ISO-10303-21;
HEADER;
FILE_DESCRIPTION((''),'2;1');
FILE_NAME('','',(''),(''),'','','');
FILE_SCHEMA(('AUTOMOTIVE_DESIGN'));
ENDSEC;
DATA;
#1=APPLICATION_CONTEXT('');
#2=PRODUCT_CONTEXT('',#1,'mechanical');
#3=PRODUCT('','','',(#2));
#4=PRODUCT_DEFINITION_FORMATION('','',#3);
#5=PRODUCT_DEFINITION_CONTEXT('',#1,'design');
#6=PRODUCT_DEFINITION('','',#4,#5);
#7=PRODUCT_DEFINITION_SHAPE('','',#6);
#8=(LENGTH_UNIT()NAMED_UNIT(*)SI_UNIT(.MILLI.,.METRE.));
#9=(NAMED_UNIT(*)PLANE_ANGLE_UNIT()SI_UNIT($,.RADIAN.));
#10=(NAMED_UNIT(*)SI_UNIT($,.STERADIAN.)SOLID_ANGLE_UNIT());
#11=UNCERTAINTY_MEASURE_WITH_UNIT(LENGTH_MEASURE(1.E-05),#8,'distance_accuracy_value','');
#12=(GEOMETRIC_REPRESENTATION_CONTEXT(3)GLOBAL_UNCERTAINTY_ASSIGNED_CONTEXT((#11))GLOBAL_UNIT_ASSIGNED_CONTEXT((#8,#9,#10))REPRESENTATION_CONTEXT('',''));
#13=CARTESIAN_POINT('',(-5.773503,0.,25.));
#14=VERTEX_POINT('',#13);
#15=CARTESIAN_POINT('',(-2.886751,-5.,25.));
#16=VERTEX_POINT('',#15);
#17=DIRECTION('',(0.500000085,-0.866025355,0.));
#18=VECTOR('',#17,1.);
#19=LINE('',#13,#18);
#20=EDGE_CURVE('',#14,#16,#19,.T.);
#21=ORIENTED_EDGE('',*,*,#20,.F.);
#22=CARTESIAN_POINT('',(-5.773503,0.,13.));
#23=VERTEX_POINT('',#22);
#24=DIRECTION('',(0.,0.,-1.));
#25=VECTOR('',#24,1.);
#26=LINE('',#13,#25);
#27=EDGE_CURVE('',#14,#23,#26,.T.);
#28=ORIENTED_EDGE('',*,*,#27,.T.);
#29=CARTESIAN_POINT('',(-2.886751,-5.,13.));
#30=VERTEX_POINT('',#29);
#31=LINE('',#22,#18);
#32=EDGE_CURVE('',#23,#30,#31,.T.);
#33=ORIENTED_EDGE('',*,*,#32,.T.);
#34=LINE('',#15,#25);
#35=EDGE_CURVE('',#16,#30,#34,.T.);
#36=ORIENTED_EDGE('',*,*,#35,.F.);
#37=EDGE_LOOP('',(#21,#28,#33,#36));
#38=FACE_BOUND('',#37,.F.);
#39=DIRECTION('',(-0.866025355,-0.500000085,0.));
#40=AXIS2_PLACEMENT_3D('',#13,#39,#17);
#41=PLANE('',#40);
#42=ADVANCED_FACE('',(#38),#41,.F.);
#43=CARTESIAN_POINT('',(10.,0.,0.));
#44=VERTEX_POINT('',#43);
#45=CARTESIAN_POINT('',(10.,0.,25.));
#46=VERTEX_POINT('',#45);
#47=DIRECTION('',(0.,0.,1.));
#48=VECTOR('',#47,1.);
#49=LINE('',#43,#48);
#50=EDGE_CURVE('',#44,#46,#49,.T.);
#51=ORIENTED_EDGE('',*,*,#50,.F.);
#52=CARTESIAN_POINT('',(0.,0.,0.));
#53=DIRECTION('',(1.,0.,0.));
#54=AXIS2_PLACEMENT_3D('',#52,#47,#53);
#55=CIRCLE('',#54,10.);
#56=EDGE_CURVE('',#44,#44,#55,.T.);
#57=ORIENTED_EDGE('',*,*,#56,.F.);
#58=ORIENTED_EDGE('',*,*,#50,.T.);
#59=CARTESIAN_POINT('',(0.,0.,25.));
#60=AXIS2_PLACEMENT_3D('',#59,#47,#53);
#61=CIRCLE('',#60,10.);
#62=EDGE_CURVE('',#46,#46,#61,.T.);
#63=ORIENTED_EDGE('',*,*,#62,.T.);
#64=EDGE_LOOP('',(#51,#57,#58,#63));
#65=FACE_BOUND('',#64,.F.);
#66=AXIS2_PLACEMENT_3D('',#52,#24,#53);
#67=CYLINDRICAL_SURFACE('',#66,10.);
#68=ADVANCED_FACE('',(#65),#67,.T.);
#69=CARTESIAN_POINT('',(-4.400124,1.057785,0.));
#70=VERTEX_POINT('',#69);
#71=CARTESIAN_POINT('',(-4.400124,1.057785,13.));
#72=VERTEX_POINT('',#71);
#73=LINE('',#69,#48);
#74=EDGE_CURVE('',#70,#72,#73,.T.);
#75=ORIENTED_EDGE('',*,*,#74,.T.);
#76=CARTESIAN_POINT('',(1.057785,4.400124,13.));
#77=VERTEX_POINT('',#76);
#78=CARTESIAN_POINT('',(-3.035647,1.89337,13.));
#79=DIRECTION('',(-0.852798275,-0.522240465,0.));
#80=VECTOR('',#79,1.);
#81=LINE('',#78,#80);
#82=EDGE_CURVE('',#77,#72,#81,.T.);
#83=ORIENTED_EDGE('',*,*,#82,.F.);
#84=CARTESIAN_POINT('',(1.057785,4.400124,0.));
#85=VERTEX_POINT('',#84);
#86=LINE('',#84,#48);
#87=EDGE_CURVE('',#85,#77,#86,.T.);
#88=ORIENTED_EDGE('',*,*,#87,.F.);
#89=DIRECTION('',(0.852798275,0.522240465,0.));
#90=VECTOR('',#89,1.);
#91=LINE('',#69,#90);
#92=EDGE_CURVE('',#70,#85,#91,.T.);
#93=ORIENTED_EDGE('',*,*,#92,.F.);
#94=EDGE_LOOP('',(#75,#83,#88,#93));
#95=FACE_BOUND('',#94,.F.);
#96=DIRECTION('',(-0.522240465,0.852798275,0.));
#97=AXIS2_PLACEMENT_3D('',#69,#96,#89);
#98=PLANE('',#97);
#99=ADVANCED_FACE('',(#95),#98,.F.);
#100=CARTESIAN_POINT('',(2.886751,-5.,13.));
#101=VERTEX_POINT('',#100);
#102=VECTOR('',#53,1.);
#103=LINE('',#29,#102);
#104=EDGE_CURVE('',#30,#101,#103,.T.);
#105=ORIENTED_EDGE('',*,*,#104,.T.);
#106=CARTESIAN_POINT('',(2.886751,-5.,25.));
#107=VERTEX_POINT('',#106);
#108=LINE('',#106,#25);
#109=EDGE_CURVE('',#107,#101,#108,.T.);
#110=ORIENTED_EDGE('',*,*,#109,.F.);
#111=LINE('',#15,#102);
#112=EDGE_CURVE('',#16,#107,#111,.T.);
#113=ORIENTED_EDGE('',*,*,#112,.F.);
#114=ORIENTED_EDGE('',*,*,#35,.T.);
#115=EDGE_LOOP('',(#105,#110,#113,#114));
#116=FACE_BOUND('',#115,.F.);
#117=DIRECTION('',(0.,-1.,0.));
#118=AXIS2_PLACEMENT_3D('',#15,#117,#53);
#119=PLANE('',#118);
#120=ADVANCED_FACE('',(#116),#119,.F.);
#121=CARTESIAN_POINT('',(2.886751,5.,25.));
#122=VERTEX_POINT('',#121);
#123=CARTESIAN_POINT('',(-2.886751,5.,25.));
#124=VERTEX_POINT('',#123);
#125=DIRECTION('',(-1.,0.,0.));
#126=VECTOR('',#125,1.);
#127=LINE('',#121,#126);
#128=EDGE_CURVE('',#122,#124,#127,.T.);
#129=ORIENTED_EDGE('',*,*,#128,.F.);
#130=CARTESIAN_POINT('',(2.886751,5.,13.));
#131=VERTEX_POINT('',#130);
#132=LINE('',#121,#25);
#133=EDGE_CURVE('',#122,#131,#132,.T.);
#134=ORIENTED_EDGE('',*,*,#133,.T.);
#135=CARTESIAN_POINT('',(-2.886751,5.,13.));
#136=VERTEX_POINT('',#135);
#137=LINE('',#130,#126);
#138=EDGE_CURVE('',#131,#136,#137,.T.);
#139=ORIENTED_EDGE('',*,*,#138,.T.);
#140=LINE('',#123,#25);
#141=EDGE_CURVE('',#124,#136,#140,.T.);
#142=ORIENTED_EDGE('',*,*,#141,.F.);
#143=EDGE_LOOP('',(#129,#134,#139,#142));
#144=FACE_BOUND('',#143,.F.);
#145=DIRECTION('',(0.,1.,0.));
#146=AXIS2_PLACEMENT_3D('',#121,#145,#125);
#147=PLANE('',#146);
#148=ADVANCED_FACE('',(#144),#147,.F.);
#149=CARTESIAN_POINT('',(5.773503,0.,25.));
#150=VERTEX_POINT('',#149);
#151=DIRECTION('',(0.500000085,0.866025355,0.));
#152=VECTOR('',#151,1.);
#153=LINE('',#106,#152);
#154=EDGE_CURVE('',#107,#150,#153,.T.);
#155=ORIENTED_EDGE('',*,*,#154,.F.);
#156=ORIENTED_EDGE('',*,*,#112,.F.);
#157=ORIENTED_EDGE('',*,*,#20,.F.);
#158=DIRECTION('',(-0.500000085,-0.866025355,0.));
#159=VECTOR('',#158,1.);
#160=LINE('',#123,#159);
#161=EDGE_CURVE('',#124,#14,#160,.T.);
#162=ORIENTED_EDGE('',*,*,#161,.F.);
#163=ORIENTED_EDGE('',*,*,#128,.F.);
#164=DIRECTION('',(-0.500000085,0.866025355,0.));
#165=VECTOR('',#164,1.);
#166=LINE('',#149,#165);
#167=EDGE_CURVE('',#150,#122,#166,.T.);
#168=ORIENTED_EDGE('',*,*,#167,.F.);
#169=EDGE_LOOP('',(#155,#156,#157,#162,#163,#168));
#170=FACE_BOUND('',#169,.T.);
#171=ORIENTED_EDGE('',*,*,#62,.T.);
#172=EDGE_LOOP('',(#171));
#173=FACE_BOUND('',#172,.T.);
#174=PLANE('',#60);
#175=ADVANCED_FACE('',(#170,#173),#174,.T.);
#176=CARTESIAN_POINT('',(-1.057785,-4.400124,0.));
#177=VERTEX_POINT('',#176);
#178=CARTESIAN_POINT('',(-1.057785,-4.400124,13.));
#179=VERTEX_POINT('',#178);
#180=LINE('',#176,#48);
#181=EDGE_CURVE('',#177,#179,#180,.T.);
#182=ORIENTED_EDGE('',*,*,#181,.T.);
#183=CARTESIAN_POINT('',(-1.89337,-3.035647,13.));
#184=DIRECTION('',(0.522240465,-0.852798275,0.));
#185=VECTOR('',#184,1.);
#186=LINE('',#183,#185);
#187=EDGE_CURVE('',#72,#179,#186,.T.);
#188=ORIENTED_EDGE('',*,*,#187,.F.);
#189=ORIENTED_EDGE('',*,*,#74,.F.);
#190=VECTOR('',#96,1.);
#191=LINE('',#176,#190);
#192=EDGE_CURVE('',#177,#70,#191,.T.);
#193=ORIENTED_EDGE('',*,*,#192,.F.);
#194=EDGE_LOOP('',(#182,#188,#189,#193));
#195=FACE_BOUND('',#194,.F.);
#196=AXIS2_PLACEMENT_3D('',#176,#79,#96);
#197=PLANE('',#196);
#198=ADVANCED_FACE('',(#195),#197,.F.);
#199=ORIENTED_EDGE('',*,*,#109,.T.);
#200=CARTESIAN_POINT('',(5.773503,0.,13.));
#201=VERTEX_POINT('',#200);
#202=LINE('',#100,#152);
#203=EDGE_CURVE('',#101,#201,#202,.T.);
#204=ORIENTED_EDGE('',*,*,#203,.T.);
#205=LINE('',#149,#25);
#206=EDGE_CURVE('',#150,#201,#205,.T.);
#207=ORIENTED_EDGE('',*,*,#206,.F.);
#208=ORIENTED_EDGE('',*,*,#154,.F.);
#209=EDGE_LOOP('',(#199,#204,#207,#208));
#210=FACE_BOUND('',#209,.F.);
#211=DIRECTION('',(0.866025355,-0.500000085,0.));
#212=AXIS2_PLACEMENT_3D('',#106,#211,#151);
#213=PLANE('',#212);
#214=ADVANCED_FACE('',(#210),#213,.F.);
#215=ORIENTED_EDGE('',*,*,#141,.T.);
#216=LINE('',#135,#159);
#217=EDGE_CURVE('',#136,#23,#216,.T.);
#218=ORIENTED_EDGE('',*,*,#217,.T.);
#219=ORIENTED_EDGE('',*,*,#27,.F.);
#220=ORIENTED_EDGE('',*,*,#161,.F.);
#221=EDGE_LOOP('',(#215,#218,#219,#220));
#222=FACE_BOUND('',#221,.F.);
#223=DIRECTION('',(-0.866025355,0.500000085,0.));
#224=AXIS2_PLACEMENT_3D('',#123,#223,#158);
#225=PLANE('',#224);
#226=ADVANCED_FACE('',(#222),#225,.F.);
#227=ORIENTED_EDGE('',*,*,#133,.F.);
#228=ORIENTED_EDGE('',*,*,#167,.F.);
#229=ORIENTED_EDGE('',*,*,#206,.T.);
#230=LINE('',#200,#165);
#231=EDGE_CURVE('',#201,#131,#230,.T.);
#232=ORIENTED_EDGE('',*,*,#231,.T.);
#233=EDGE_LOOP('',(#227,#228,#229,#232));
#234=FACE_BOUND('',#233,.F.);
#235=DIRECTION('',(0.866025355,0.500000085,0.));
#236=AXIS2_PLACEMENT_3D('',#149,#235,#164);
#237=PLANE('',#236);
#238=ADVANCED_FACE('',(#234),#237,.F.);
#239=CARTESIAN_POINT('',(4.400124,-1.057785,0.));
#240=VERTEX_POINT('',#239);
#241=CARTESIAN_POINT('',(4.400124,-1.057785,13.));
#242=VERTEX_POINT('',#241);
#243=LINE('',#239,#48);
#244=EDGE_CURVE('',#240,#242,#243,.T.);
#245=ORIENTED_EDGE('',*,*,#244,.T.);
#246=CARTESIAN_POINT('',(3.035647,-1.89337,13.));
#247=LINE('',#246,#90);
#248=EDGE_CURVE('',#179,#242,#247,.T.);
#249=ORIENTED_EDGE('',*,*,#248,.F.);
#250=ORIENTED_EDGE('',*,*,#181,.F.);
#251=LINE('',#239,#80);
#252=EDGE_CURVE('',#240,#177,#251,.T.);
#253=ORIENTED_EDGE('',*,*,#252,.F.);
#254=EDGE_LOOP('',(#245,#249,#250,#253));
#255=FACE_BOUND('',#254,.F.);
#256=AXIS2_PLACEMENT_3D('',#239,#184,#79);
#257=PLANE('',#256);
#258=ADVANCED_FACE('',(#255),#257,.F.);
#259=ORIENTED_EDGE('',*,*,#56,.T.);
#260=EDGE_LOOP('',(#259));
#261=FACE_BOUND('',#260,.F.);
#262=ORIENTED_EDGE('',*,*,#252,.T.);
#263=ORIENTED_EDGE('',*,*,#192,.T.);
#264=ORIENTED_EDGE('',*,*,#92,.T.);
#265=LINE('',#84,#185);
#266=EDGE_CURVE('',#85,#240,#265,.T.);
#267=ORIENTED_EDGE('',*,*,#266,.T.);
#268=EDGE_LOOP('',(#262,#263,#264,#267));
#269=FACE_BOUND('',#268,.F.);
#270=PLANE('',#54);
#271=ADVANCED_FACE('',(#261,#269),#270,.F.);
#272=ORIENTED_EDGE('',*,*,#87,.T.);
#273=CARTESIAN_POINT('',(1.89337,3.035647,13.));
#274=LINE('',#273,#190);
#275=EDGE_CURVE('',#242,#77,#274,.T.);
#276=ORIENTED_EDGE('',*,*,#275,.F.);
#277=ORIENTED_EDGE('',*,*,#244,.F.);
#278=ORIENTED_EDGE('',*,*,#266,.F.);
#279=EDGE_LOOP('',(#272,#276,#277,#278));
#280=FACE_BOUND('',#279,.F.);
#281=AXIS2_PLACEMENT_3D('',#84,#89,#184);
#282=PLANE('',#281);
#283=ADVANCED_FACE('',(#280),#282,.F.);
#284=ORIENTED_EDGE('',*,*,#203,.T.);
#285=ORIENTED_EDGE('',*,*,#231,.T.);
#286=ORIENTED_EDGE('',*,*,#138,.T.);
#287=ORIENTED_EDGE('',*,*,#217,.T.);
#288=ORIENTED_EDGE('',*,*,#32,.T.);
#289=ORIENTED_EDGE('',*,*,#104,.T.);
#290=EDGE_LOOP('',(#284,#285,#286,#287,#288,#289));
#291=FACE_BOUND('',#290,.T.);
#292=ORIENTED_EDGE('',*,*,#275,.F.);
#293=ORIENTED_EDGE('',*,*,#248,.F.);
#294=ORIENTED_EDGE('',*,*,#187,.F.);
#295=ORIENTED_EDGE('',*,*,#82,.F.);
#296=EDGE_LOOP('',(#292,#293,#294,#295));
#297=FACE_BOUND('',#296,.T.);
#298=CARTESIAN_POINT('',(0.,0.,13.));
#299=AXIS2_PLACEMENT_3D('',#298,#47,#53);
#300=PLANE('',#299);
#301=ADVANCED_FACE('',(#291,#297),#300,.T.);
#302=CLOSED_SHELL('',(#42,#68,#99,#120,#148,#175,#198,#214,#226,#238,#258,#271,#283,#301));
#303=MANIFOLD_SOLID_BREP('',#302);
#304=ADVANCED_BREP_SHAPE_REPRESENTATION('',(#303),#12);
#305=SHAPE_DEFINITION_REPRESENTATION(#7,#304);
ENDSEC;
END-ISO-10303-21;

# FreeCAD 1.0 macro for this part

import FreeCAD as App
import Part
import Sketcher
from FreeCAD import Vector
Q = App.Units.Quantity


def add_polygon(sketch, points):
    """Adds a closed chain of lines whose ends are joined by coincident constraints."""
    first, n = sketch.GeometryCount, len(points)
    for a, b in zip(points, points[1:] + points[:1]):
        sketch.addGeometry(Part.LineSegment(App.Vector(*a, 0), App.Vector(*b, 0)), False)
    for i in range(n):
        sketch.addConstraint(Sketcher.Constraint("Coincident", first + i, 2, first + (i + 1) % n, 1))

doc = App.newDocument("Part")
body = doc.addObject("PartDesign::Body", "Body")

sketch1 = body.newObject("Sketcher::SketchObject", "Sketch")
sketch1.AttachmentSupport = (doc.getObject("XY_Plane"), [""])
sketch1.MapMode = "FlatFace"
sketch1.addGeometry(Part.Circle(Vector(0, 0, 0), Vector(0, 0, 1), 10), False)
sketch1.addConstraint(Sketcher.Constraint("Coincident", 0, 3, -1, 1))
sketch1.addConstraint(Sketcher.Constraint("Diameter", 0, 20.0))
pad1 = body.newObject("PartDesign::Pad", "Pad")
pad1.Profile = sketch1
pad1.Length = 25

sketch2 = body.newObject("Sketcher::SketchObject", "Sketch001")
sketch2.AttachmentSupport = (doc.getObject("XY_Plane"), [""])
sketch2.MapMode = "FlatFace"
sketch2.AttachmentOffset = App.Placement(Vector(0, 0, 25), App.Rotation())
add_polygon(sketch2, [(3, 5), (-3, 5), (-6, 0), (-3, -5), (3, -5), (6, 0)])
sketch2.addConstraint(Sketcher.Constraint("Horizontal", 0))
sketch2.addConstraint(Sketcher.Constraint("Horizontal", 3))
sketch2.addConstraint(Sketcher.Constraint("Symmetric", 0, 2, 3, 2, -1, 1))
sketch2.addConstraint(Sketcher.Constraint("Symmetric", 1, 2, 4, 2, -1, 1))
sketch2.addConstraint(Sketcher.Constraint("PointOnObject", 1, 2, -1))
sketch2.addConstraint(Sketcher.Constraint("Parallel", 2, 5))
sketch2.addConstraint(Sketcher.Constraint("Vertical", 0, 2, 2, 2))
sketch2.addConstraint(Sketcher.Constraint("Angle", 1, Q("-120.000006 deg")))
sketch2.addConstraint(Sketcher.Constraint("DistanceY", -1, 1, 0, 2, 5.0))
sketch2.addConstraint(Sketcher.Constraint("DistanceX", 0, 2, 0, 1, 5.773502))
pocket1 = body.newObject("PartDesign::Pocket", "Pocket")
pocket1.Profile = sketch2
pocket1.Length = 12

sketch3 = body.newObject("Sketcher::SketchObject", "Sketch002")
sketch3.AttachmentSupport = (doc.getObject("XY_Plane"), [""])
sketch3.MapMode = "FlatFace"
add_polygon(sketch3, [(1, 4), (4, -1), (-1, -4), (-4, 1)])
sketch3.addConstraint(Sketcher.Constraint("Symmetric", 0, 2, 2, 2, -1, 1))
sketch3.addConstraint(Sketcher.Constraint("Symmetric", 1, 2, 3, 2, -1, 1))
sketch3.addConstraint(Sketcher.Constraint("Perpendicular", 0, 1))
sketch3.addConstraint(Sketcher.Constraint("Equal", 0, 1))
sketch3.addConstraint(Sketcher.Constraint("Distance", 0, 6.4))
sketch3.addConstraint(Sketcher.Constraint("DistanceX", 1, 2, 0, 2, 5.457909))
pocket2 = body.newObject("PartDesign::Pocket", "Pocket001")
pocket2.Profile = sketch3
pocket2.Length = 25
pocket2.Reversed = True

doc.recompute()
